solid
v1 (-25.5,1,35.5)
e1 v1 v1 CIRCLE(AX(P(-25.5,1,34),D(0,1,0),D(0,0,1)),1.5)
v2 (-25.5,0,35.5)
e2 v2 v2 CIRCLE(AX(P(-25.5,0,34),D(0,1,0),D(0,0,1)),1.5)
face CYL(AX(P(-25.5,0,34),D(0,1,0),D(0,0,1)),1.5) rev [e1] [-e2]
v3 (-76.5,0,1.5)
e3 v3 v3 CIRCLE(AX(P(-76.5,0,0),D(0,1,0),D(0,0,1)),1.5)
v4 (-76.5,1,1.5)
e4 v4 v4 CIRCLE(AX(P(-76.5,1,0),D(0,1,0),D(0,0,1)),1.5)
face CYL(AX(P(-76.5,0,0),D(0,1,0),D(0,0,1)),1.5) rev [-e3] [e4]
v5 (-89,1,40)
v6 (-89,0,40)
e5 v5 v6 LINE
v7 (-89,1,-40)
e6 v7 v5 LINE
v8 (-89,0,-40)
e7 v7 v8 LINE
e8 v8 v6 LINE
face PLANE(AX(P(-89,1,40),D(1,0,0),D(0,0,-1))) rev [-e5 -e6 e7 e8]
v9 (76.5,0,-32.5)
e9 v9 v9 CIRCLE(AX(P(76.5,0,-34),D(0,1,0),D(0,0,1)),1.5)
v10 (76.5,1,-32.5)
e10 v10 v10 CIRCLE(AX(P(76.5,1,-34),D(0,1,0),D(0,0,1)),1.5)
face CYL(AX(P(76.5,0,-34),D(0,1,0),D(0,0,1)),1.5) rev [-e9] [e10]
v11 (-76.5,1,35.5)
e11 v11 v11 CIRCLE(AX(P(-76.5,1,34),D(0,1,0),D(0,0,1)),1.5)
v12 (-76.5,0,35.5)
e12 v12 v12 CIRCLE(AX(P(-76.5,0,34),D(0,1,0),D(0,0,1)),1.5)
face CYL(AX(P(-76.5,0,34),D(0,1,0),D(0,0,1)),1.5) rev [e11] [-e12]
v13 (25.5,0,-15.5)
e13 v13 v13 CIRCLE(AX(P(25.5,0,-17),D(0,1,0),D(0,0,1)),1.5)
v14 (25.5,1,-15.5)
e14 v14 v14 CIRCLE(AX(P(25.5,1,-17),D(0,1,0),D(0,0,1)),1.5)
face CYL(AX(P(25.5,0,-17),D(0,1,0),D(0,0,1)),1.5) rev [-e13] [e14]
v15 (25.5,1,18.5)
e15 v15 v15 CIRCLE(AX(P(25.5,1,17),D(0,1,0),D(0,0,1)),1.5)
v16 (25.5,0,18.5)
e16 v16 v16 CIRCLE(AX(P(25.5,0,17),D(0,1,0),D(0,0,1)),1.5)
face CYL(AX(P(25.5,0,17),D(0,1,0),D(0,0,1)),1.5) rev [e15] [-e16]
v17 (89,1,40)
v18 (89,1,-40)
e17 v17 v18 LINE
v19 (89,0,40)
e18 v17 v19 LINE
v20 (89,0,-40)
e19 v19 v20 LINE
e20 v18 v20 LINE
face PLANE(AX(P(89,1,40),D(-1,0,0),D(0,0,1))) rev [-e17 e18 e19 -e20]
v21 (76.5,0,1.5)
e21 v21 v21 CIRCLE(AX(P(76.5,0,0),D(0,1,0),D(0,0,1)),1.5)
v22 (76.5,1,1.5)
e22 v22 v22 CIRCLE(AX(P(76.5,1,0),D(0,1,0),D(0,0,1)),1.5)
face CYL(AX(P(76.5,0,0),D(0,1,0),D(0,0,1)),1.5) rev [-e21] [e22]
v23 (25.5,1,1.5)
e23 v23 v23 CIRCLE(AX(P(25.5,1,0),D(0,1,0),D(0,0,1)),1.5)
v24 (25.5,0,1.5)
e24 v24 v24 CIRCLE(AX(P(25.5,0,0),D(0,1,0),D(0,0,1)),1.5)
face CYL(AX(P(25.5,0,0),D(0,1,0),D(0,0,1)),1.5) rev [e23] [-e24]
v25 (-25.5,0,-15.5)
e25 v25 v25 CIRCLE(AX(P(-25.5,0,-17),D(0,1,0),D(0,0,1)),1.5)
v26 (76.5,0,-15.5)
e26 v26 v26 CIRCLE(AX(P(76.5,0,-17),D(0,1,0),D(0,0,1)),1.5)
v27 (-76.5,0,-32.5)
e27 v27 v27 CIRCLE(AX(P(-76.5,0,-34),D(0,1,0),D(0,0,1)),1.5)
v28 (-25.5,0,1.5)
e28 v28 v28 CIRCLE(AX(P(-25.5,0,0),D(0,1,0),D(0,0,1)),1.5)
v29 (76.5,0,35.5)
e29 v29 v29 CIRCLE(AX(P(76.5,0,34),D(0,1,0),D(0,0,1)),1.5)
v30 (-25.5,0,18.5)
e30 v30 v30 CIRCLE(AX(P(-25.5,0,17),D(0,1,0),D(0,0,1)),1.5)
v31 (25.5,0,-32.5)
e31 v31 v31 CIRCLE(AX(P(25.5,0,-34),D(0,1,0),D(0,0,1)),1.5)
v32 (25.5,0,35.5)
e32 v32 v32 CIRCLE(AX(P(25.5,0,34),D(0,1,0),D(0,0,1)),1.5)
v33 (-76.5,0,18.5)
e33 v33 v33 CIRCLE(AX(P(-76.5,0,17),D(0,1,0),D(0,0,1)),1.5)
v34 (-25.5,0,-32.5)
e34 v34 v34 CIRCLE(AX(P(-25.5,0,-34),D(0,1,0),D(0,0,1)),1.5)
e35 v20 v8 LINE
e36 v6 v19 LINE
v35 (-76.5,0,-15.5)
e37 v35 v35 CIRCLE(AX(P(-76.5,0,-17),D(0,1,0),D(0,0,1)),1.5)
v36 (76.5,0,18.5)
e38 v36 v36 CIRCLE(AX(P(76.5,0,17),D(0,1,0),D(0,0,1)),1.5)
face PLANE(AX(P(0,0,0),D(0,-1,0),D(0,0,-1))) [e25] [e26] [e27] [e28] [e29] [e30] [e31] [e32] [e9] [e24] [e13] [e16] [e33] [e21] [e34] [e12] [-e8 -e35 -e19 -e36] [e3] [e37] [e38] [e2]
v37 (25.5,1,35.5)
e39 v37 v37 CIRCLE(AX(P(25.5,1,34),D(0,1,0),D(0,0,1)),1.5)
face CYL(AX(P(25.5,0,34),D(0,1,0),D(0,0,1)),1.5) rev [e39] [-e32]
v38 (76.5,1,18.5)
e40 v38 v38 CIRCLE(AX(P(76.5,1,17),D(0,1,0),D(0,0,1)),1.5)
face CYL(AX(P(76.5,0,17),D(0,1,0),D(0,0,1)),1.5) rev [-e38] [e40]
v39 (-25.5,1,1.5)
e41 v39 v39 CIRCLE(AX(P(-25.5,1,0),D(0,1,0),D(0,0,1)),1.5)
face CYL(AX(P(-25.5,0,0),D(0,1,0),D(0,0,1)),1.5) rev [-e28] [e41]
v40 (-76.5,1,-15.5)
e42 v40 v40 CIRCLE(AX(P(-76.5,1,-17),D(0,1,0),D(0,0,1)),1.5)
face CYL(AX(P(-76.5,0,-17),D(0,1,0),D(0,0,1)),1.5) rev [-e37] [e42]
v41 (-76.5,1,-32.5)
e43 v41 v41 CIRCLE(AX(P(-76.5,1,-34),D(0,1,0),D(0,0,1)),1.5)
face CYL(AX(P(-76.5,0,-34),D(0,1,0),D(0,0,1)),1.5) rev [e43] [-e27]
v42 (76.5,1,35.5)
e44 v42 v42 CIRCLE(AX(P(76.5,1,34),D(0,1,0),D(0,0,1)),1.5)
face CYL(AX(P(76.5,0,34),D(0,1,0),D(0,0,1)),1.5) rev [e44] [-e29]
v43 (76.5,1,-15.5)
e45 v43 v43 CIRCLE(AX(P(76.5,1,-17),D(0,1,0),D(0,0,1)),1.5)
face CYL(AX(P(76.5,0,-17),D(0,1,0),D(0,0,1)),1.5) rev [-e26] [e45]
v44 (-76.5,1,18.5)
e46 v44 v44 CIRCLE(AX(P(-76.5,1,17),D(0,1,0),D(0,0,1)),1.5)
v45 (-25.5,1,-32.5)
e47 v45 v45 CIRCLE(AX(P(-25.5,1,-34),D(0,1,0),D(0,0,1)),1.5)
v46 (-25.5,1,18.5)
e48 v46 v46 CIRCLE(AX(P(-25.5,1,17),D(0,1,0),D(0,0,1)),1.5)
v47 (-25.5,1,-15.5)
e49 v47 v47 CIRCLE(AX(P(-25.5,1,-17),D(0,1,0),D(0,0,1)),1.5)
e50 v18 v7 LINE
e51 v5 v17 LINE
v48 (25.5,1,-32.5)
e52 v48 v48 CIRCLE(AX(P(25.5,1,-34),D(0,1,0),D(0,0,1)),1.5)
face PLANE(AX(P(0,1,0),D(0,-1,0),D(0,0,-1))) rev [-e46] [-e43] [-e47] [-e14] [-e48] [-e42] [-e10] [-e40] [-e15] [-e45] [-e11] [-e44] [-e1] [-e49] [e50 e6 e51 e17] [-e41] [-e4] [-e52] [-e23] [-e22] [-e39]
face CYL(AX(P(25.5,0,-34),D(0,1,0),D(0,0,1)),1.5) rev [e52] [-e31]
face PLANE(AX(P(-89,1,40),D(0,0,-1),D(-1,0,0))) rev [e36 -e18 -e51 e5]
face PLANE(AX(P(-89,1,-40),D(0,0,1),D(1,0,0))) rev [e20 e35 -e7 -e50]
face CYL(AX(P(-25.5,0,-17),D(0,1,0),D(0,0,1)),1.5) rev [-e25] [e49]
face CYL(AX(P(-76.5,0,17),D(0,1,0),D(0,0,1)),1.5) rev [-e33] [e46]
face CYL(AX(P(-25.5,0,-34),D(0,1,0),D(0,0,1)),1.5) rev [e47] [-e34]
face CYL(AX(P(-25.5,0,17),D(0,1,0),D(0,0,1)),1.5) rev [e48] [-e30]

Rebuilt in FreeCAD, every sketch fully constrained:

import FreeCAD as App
import Part
import Sketcher
from FreeCAD import Vector


def add_polygon(sketch, points):
    """Adds a closed chain of lines whose ends are joined by coincident constraints."""
    first, n = sketch.GeometryCount, len(points)
    for a, b in zip(points, points[1:] + points[:1]):
        sketch.addGeometry(Part.LineSegment(App.Vector(*a, 0), App.Vector(*b, 0)), False)
    for i in range(n):
        sketch.addConstraint(Sketcher.Constraint("Coincident", first + i, 2, first + (i + 1) % n, 1))

doc = App.newDocument("Part")
body = doc.addObject("PartDesign::Body", "Body")

# Sketch on XZ plane
sketch1 = doc.addObject("Sketcher::SketchObject", "Sketch")
body.addObject(sketch1)
sketch1.AttachmentSupport = (doc.XZ_Plane, [""])
sketch1.MapMode = "FlatFace"
add_polygon(sketch1, [(-89, -40), (-89, 40), (89, 40), (89, -40)])  # lines 0-3
sketch1.addConstraint(Sketcher.Constraint("Vertical", 0))
sketch1.addConstraint(Sketcher.Constraint("Horizontal", 1))
sketch1.addConstraint(Sketcher.Constraint("Vertical", 2))
sketch1.addConstraint(Sketcher.Constraint("Horizontal", 3))
sketch1.addConstraint(Sketcher.Constraint("Symmetric", 0, 2, 2, 2, -1, 1))
sketch1.addConstraint(Sketcher.Constraint("DistanceX", 1, 1, 1, 2, 178.0))
sketch1.addConstraint(Sketcher.Constraint("DistanceY", 0, 1, 0, 2, 80.0))
pad1 = doc.addObject("PartDesign::Pad", "Pad")
body.addObject(pad1)
pad1.Profile = sketch1
pad1.Length = 1
pad1.Reversed = True

# Sketch on XZ plane
sketch2 = doc.addObject("Sketcher::SketchObject", "Sketch001")
body.addObject(sketch2)
sketch2.AttachmentSupport = (doc.XZ_Plane, [""])
sketch2.MapMode = "FlatFace"
sketch2.AttachmentOffset = App.Placement(Vector(0, 0, -1), App.Rotation())
sketch2.addGeometry(Part.Circle(Vector(-76.5, -34, 0), Vector(0, 0, 1), 1.5), False)
sketch2.addGeometry(Part.Circle(Vector(-76.5, -17, 0), Vector(0, 0, 1), 1.5), False)
sketch2.addGeometry(Part.Circle(Vector(-76.5, 0, 0), Vector(0, 0, 1), 1.5), False)
sketch2.addGeometry(Part.Circle(Vector(-76.5, 17, 0), Vector(0, 0, 1), 1.5), False)
sketch2.addGeometry(Part.Circle(Vector(-76.5, 34, 0), Vector(0, 0, 1), 1.5), False)
sketch2.addGeometry(Part.Circle(Vector(-25.5, -34, 0), Vector(0, 0, 1), 1.5), False)
sketch2.addGeometry(Part.Circle(Vector(-25.5, -17, 0), Vector(0, 0, 1), 1.5), False)
sketch2.addGeometry(Part.Circle(Vector(-25.5, 0, 0), Vector(0, 0, 1), 1.5), False)
sketch2.addGeometry(Part.Circle(Vector(-25.5, 17, 0), Vector(0, 0, 1), 1.5), False)
sketch2.addGeometry(Part.Circle(Vector(-25.5, 34, 0), Vector(0, 0, 1), 1.5), False)
sketch2.addGeometry(Part.Circle(Vector(25.5, -34, 0), Vector(0, 0, 1), 1.5), False)
sketch2.addGeometry(Part.Circle(Vector(25.5, -17, 0), Vector(0, 0, 1), 1.5), False)
sketch2.addGeometry(Part.Circle(Vector(25.5, 0, 0), Vector(0, 0, 1), 1.5), False)
sketch2.addGeometry(Part.Circle(Vector(25.5, 17, 0), Vector(0, 0, 1), 1.5), False)
sketch2.addGeometry(Part.Circle(Vector(25.5, 34, 0), Vector(0, 0, 1), 1.5), False)
sketch2.addGeometry(Part.Circle(Vector(76.5, -34, 0), Vector(0, 0, 1), 1.5), False)
sketch2.addGeometry(Part.Circle(Vector(76.5, -17, 0), Vector(0, 0, 1), 1.5), False)
sketch2.addGeometry(Part.Circle(Vector(76.5, 0, 0), Vector(0, 0, 1), 1.5), False)
sketch2.addGeometry(Part.Circle(Vector(76.5, 17, 0), Vector(0, 0, 1), 1.5), False)
sketch2.addGeometry(Part.Circle(Vector(76.5, 34, 0), Vector(0, 0, 1), 1.5), False)
sketch2.addConstraint(Sketcher.Constraint("Equal", 0, 1))
sketch2.addConstraint(Sketcher.Constraint("Equal", 1, 2))
sketch2.addConstraint(Sketcher.Constraint("Equal", 2, 3))
sketch2.addConstraint(Sketcher.Constraint("Equal", 3, 4))
sketch2.addConstraint(Sketcher.Constraint("Equal", 4, 5))
sketch2.addConstraint(Sketcher.Constraint("Equal", 5, 6))
sketch2.addConstraint(Sketcher.Constraint("Equal", 6, 7))
sketch2.addConstraint(Sketcher.Constraint("Equal", 7, 8))
sketch2.addConstraint(Sketcher.Constraint("Equal", 8, 9))
sketch2.addConstraint(Sketcher.Constraint("Equal", 9, 10))
sketch2.addConstraint(Sketcher.Constraint("Equal", 10, 11))
sketch2.addConstraint(Sketcher.Constraint("Equal", 11, 12))
sketch2.addConstraint(Sketcher.Constraint("Equal", 12, 13))
sketch2.addConstraint(Sketcher.Constraint("Equal", 13, 14))
sketch2.addConstraint(Sketcher.Constraint("Equal", 14, 15))
sketch2.addConstraint(Sketcher.Constraint("Equal", 15, 16))
sketch2.addConstraint(Sketcher.Constraint("Equal", 16, 17))
sketch2.addConstraint(Sketcher.Constraint("Equal", 17, 18))
sketch2.addConstraint(Sketcher.Constraint("Equal", 18, 19))
sketch2.addConstraint(Sketcher.Constraint("Symmetric", 9, 3, 10, 3, -1, 1))
sketch2.addConstraint(Sketcher.Constraint("Symmetric", 8, 3, 11, 3, -1, 1))
sketch2.addConstraint(Sketcher.Constraint("Symmetric", 7, 3, 12, 3, -1, 1))
sketch2.addConstraint(Sketcher.Constraint("Symmetric", 6, 3, 13, 3, -1, 1))
sketch2.addConstraint(Sketcher.Constraint("Symmetric", 5, 3, 14, 3, -1, 1))
sketch2.addConstraint(Sketcher.Constraint("Symmetric", 4, 3, 15, 3, -1, 1))
sketch2.addConstraint(Sketcher.Constraint("Symmetric", 3, 3, 16, 3, -1, 1))
sketch2.addConstraint(Sketcher.Constraint("Symmetric", 2, 3, 17, 3, -1, 1))
sketch2.addConstraint(Sketcher.Constraint("Symmetric", 1, 3, 18, 3, -1, 1))
sketch2.addConstraint(Sketcher.Constraint("Symmetric", 0, 3, 19, 3, -1, 1))
sketch2.addConstraint(Sketcher.Constraint("Symmetric", 5, 3, 10, 3, -2))
sketch2.addConstraint(Sketcher.Constraint("Symmetric", 6, 3, 11, 3, -2))
sketch2.addConstraint(Sketcher.Constraint("Symmetric", 0, 3, 15, 3, -2))
sketch2.addConstraint(Sketcher.Constraint("Symmetric", 1, 3, 16, 3, -2))
sketch2.addConstraint(Sketcher.Constraint("PointOnObject", 2, 3, -1))
sketch2.addConstraint(Sketcher.Constraint("PointOnObject", 7, 3, -1))
sketch2.addConstraint(Sketcher.Constraint("Horizontal", 0, 3, 5, 3))
sketch2.addConstraint(Sketcher.Constraint("Horizontal", 1, 3, 6, 3))
sketch2.addConstraint(Sketcher.Constraint("Vertical", 0, 3, 1, 3))
sketch2.addConstraint(Sketcher.Constraint("Vertical", 1, 3, 2, 3))
sketch2.addConstraint(Sketcher.Constraint("Vertical", 5, 3, 6, 3))
sketch2.addConstraint(Sketcher.Constraint("Vertical", 6, 3, 7, 3))
sketch2.addConstraint(Sketcher.Constraint("Diameter", 0, 3.0))
sketch2.addConstraint(Sketcher.Constraint("DistanceY", 0, 3, -1, 1, 34.0))
sketch2.addConstraint(Sketcher.Constraint("DistanceY", 1, 3, -1, 1, 17.0))
sketch2.addConstraint(Sketcher.Constraint("DistanceX", 0, 3, 5, 3, 51.0))
sketch2.addConstraint(Sketcher.Constraint("DistanceX", 5, 3, 10, 3, 51.0))
pocket1 = doc.addObject("PartDesign::Pocket", "Pocket")
body.addObject(pocket1)
pocket1.Profile = sketch2
pocket1.Length = 1
pocket1.Reversed = True

doc.recompute()
